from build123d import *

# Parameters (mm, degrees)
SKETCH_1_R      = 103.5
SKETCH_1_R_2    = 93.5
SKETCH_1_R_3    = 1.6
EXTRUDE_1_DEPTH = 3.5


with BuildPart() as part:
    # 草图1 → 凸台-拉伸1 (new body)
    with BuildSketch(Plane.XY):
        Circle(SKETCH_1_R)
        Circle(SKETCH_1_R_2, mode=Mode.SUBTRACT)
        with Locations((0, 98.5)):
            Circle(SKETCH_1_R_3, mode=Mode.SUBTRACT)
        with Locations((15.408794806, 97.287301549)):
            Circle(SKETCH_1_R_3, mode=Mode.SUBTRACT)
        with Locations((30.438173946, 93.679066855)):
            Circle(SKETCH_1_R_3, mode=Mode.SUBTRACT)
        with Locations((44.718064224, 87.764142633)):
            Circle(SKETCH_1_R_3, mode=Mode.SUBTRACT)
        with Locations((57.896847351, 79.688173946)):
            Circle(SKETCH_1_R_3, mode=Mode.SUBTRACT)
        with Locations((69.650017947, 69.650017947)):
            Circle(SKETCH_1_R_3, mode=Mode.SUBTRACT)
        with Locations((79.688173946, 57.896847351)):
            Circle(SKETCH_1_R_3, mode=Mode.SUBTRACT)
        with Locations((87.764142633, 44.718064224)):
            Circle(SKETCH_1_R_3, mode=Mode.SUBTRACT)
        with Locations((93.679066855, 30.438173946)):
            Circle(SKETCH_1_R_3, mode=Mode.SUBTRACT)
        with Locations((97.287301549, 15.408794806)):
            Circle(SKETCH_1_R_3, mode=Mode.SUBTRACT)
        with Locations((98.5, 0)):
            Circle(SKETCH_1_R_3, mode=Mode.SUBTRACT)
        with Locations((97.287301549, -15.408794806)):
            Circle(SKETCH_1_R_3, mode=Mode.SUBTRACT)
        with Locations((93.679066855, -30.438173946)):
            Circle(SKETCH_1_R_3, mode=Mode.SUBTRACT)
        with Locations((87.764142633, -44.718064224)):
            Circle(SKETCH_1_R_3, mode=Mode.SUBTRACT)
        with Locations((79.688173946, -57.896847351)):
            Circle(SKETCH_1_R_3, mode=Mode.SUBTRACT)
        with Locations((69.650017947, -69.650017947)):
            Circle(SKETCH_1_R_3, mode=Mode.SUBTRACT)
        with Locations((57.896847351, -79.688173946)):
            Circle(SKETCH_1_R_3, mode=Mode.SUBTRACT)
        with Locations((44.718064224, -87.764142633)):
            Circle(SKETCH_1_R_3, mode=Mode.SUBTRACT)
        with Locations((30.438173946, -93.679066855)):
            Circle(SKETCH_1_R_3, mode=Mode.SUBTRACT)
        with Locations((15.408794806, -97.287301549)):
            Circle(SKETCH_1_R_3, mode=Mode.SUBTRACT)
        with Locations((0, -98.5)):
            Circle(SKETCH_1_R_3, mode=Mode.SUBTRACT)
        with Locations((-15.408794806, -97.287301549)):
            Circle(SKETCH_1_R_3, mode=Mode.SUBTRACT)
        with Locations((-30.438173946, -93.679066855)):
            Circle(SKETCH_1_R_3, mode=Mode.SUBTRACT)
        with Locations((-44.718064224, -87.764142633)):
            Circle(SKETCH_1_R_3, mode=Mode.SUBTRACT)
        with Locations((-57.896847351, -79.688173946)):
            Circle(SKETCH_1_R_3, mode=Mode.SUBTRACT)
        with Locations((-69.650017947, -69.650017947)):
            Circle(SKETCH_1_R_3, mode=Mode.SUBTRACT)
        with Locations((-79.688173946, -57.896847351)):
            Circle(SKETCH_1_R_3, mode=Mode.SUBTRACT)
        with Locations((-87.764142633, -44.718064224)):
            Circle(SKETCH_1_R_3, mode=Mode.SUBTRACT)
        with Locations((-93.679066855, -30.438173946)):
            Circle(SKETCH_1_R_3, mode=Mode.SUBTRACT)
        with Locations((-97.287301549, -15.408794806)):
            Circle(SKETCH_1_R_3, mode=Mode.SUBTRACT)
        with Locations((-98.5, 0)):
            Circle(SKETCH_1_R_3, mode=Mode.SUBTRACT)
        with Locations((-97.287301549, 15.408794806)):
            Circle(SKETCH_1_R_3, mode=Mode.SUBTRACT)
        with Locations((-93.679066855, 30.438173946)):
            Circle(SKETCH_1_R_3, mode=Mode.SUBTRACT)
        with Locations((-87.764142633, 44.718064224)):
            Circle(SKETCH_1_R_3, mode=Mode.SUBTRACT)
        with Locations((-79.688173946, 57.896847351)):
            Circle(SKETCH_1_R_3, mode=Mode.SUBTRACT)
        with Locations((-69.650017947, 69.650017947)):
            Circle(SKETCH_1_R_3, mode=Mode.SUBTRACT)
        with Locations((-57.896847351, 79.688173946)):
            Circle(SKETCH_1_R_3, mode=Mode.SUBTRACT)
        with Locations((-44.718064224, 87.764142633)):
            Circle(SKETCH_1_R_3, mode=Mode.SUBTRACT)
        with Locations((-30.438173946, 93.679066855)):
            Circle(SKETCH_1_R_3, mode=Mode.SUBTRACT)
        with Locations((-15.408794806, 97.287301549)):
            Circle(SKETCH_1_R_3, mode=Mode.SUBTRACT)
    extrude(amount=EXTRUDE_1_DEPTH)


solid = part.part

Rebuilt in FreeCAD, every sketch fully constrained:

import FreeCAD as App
import Part
import Sketcher

V = App.Vector
Q = App.Units.Quantity

doc = App.newDocument("Part")
params = doc.addObject("Spreadsheet::Sheet", "Params")
for row, (alias, value) in enumerate([
    ("sketch1_diameter", "207 mm"),
    ("sketch1_diameter2", "187 mm"),
    ("sketch1_diameter3", "3.2 mm"),
    ("pad1_length", "3.5 mm"),
], start=1):
    params.set(f"A{row}", alias)
    params.set(f"B{row}", "=" + value)
    params.setAlias(f"B{row}", alias)

body = doc.addObject("PartDesign::Body", "Body")

# Sketch on XY plane
sketch1 = body.newObject("Sketcher::SketchObject", "Sketch")
sketch1.AttachmentSupport = (doc.getObject("XY_Plane"), [""])
sketch1.MapMode = "FlatFace"
sketch1.addGeometry([
    Part.Circle(V(0, 0, 0), V(0, 0, 1), 103.5),  # 0
    Part.Circle(V(-57.9, -79.7, 0), V(0, 0, 1), 1.6),  # 1
    Part.Circle(V(-79.7, -57.9, 0), V(0, 0, 1), 1.6),  # 2
    Part.Circle(V(-69.7, -69.7, 0), V(0, 0, 1), 1.6),  # 3
    Part.Circle(V(-44.7, -87.8, 0), V(0, 0, 1), 1.6),  # 4
    Part.Circle(V(-30.4, -93.7, 0), V(0, 0, 1), 1.6),  # 5
    Part.Circle(V(-15.4, -97.3, 0), V(0, 0, 1), 1.6),  # 6
    Part.Circle(V(0, -98.5, 0), V(0, 0, 1), 1.6),  # 7
    Part.Circle(V(-87.8, -44.7, 0), V(0, 0, 1), 1.6),  # 8
    Part.Circle(V(-93.7, -30.4, 0), V(0, 0, 1), 1.6),  # 9
    Part.Circle(V(-97.3, -15.4, 0), V(0, 0, 1), 1.6),  # 10
    Part.Circle(V(-98.5, 0, 0), V(0, 0, 1), 1.6),  # 11
    Part.Circle(V(0, 0, 0), V(0, 0, 1), 93.5),  # 12
    Part.Circle(V(15.4, -97.3, 0), V(0, 0, 1), 1.6),  # 13
    Part.Circle(V(30.4, -93.7, 0), V(0, 0, 1), 1.6),  # 14
    Part.Circle(V(44.7, -87.8, 0), V(0, 0, 1), 1.6),  # 15
    Part.Circle(V(57.9, -79.7, 0), V(0, 0, 1), 1.6),  # 16
    Part.Circle(V(69.7, -69.7, 0), V(0, 0, 1), 1.6),  # 17
    Part.Circle(V(79.7, -57.9, 0), V(0, 0, 1), 1.6),  # 18
    Part.Circle(V(87.8, -44.7, 0), V(0, 0, 1), 1.6),  # 19
    Part.Circle(V(93.7, -30.4, 0), V(0, 0, 1), 1.6),  # 20
    Part.Circle(V(97.3, -15.4, 0), V(0, 0, 1), 1.6),  # 21
    Part.Circle(V(98.5, 0, 0), V(0, 0, 1), 1.6),  # 22
    Part.Circle(V(-97.3, 15.4, 0), V(0, 0, 1), 1.6),  # 23
    Part.Circle(V(-93.7, 30.4, 0), V(0, 0, 1), 1.6),  # 24
    Part.Circle(V(-87.8, 44.7, 0), V(0, 0, 1), 1.6),  # 25
    Part.Circle(V(-79.7, 57.9, 0), V(0, 0, 1), 1.6),  # 26
    Part.Circle(V(-69.7, 69.7, 0), V(0, 0, 1), 1.6),  # 27
    Part.Circle(V(-57.9, 79.7, 0), V(0, 0, 1), 1.6),  # 28
    Part.Circle(V(-44.7, 87.8, 0), V(0, 0, 1), 1.6),  # 29
    Part.Circle(V(-30.4, 93.7, 0), V(0, 0, 1), 1.6),  # 30
    Part.Circle(V(-15.4, 97.3, 0), V(0, 0, 1), 1.6),  # 31
    Part.Circle(V(0, 98.5, 0), V(0, 0, 1), 1.6),  # 32
    Part.Circle(V(97.3, 15.4, 0), V(0, 0, 1), 1.6),  # 33
    Part.Circle(V(93.7, 30.4, 0), V(0, 0, 1), 1.6),  # 34
    Part.Circle(V(87.8, 44.7, 0), V(0, 0, 1), 1.6),  # 35
    Part.Circle(V(15.4, 97.3, 0), V(0, 0, 1), 1.6),  # 36
    Part.Circle(V(30.4, 93.7, 0), V(0, 0, 1), 1.6),  # 37
    Part.Circle(V(44.7, 87.8, 0), V(0, 0, 1), 1.6),  # 38
    Part.Circle(V(69.7, 69.7, 0), V(0, 0, 1), 1.6),  # 39
    Part.Circle(V(79.7, 57.9, 0), V(0, 0, 1), 1.6),  # 40
    Part.Circle(V(57.9, 79.7, 0), V(0, 0, 1), 1.6),  # 41
], False)
sketch1.addConstraint([
    Sketcher.Constraint("Coincident", 0, 3, -1, 1),
    Sketcher.Constraint("Coincident", 12, 3, -1, 1),
    Sketcher.Constraint("Equal", 1, 2),
    Sketcher.Constraint("Equal", 2, 3),
    Sketcher.Constraint("Equal", 3, 4),
    Sketcher.Constraint("Equal", 4, 5),
    Sketcher.Constraint("Equal", 5, 6),
    Sketcher.Constraint("Equal", 6, 7),
    Sketcher.Constraint("Equal", 7, 8),
    Sketcher.Constraint("Equal", 8, 9),
    Sketcher.Constraint("Equal", 9, 10),
    Sketcher.Constraint("Equal", 10, 11),
    Sketcher.Constraint("Equal", 11, 13),
    Sketcher.Constraint("Equal", 13, 14),
    Sketcher.Constraint("Equal", 14, 15),
    Sketcher.Constraint("Equal", 15, 16),
    Sketcher.Constraint("Equal", 16, 17),
    Sketcher.Constraint("Equal", 17, 18),
    Sketcher.Constraint("Equal", 18, 19),
    Sketcher.Constraint("Equal", 19, 20),
    Sketcher.Constraint("Equal", 20, 21),
    Sketcher.Constraint("Equal", 21, 22),
    Sketcher.Constraint("Equal", 22, 23),
    Sketcher.Constraint("Equal", 23, 24),
    Sketcher.Constraint("Equal", 24, 25),
    Sketcher.Constraint("Equal", 25, 26),
    Sketcher.Constraint("Equal", 26, 27),
    Sketcher.Constraint("Equal", 27, 28),
    Sketcher.Constraint("Equal", 28, 29),
    Sketcher.Constraint("Equal", 29, 30),
    Sketcher.Constraint("Equal", 30, 31),
    Sketcher.Constraint("Equal", 31, 32),
    Sketcher.Constraint("Equal", 32, 33),
    Sketcher.Constraint("Equal", 33, 34),
    Sketcher.Constraint("Equal", 34, 35),
    Sketcher.Constraint("Equal", 35, 36),
    Sketcher.Constraint("Equal", 36, 37),
    Sketcher.Constraint("Equal", 37, 38),
    Sketcher.Constraint("Equal", 38, 39),
    Sketcher.Constraint("Equal", 39, 40),
    Sketcher.Constraint("Equal", 40, 41),
    Sketcher.Constraint("Symmetric", 11, 3, 22, 3, -1, 1),
    Sketcher.Constraint("Symmetric", 21, 3, 23, 3, -1, 1),
    Sketcher.Constraint("Symmetric", 20, 3, 24, 3, -1, 1),
    Sketcher.Constraint("Symmetric", 19, 3, 25, 3, -1, 1),
    Sketcher.Constraint("Symmetric", 18, 3, 26, 3, -1, 1),
    Sketcher.Constraint("Symmetric", 17, 3, 27, 3, -1, 1),
    Sketcher.Constraint("Symmetric", 16, 3, 28, 3, -1, 1),
    Sketcher.Constraint("Symmetric", 15, 3, 29, 3, -1, 1),
    Sketcher.Constraint("Symmetric", 14, 3, 30, 3, -1, 1),
    Sketcher.Constraint("Symmetric", 13, 3, 31, 3, -1, 1),
    Sketcher.Constraint("Symmetric", 7, 3, 32, 3, -1, 1),
    Sketcher.Constraint("Symmetric", 10, 3, 33, 3, -1, 1),
    Sketcher.Constraint("Symmetric", 9, 3, 34, 3, -1, 1),
    Sketcher.Constraint("Symmetric", 8, 3, 35, 3, -1, 1),
    Sketcher.Constraint("Symmetric", 6, 3, 36, 3, -1, 1),
    Sketcher.Constraint("Symmetric", 5, 3, 37, 3, -1, 1),
    Sketcher.Constraint("Symmetric", 4, 3, 38, 3, -1, 1),
    Sketcher.Constraint("Symmetric", 3, 3, 39, 3, -1, 1),
    Sketcher.Constraint("Symmetric", 2, 3, 40, 3, -1, 1),
    Sketcher.Constraint("Symmetric", 1, 3, 41, 3, -1, 1),
    Sketcher.Constraint("Symmetric", 6, 3, 13, 3, -2),
    Sketcher.Constraint("Symmetric", 5, 3, 14, 3, -2),
    Sketcher.Constraint("Symmetric", 4, 3, 15, 3, -2),
    Sketcher.Constraint("Symmetric", 1, 3, 16, 3, -2),
    Sketcher.Constraint("Symmetric", 3, 3, 17, 3, -2),
    Sketcher.Constraint("Symmetric", 2, 3, 18, 3, -2),
    Sketcher.Constraint("Symmetric", 8, 3, 19, 3, -2),
    Sketcher.Constraint("Symmetric", 9, 3, 20, 3, -2),
    Sketcher.Constraint("Symmetric", 10, 3, 21, 3, -2),
    Sketcher.Constraint("PointOnObject", 7, 3, -2),
    Sketcher.Constraint("PointOnObject", 11, 3, -1),
    Sketcher.Constraint("Diameter", 0, Q("207 mm")),
    Sketcher.Constraint("Diameter", 12, Q("187 mm")),
    Sketcher.Constraint("Diameter", 1, Q("3.2 mm")),
    Sketcher.Constraint("DistanceY", 7, 3, -1, 1, Q("98.5 mm")),
    Sketcher.Constraint("DistanceX", 11, 3, -1, 1, Q("98.5 mm")),
    Sketcher.Constraint("DistanceX", 2, 3, 5, 3, Q("49.25 mm")),
    Sketcher.Constraint("DistanceY", 1, 3, 9, 3, Q("49.25 mm")),
    Sketcher.Constraint("DistanceY", 6, 3, -1, 1, Q("97.287302 mm")),
    Sketcher.Constraint("DistanceX", 10, 3, -1, 1, Q("97.287302 mm")),
    Sketcher.Constraint("DistanceX", 3, 3, 1, 3, Q("11.753171 mm")),
    Sketcher.Constraint("DistanceY", 3, 3, 2, 3, Q("11.753171 mm")),
    Sketcher.Constraint("DistanceY", 4, 3, 1, 3, Q("8.075969 mm")),
    Sketcher.Constraint("DistanceX", 2, 3, 4, 3, Q("34.97011 mm")),
    Sketcher.Constraint("DistanceY", 5, 3, 3, 3, Q("24.029049 mm")),
    Sketcher.Constraint("DistanceX", 5, 3, 6, 3, Q("15.029379 mm")),
    Sketcher.Constraint("DistanceY", 6, 3, 4, 3, Q("9.523159 mm")),
    Sketcher.Constraint("DistanceX", 8, 3, 2, 3, Q("8.075969 mm")),
    Sketcher.Constraint("DistanceY", 1, 3, 8, 3, Q("34.97011 mm")),
    Sketcher.Constraint("DistanceX", 9, 3, 3, 3, Q("24.029049 mm")),
    Sketcher.Constraint("DistanceY", 9, 3, 10, 3, Q("15.029379 mm")),
    Sketcher.Constraint("DistanceX", 10, 3, 8, 3, Q("9.523159 mm")),
    Sketcher.Constraint("DistanceX", 1, 3, -1, 1, Q("57.896847 mm")),
    Sketcher.Constraint("DistanceY", 2, 3, -1, 1, Q("57.896847 mm")),
])
sketch1.setExpression("Constraints[72]", "Params.sketch1_diameter")
sketch1.setExpression("Constraints[73]", "Params.sketch1_diameter2")
sketch1.setExpression("Constraints[74]", "Params.sketch1_diameter3")
pad1 = body.newObject("PartDesign::Pad", "Pad")
pad1.Profile = sketch1
pad1.setExpression("Length", "Params.pad1_length")

doc.recompute()
